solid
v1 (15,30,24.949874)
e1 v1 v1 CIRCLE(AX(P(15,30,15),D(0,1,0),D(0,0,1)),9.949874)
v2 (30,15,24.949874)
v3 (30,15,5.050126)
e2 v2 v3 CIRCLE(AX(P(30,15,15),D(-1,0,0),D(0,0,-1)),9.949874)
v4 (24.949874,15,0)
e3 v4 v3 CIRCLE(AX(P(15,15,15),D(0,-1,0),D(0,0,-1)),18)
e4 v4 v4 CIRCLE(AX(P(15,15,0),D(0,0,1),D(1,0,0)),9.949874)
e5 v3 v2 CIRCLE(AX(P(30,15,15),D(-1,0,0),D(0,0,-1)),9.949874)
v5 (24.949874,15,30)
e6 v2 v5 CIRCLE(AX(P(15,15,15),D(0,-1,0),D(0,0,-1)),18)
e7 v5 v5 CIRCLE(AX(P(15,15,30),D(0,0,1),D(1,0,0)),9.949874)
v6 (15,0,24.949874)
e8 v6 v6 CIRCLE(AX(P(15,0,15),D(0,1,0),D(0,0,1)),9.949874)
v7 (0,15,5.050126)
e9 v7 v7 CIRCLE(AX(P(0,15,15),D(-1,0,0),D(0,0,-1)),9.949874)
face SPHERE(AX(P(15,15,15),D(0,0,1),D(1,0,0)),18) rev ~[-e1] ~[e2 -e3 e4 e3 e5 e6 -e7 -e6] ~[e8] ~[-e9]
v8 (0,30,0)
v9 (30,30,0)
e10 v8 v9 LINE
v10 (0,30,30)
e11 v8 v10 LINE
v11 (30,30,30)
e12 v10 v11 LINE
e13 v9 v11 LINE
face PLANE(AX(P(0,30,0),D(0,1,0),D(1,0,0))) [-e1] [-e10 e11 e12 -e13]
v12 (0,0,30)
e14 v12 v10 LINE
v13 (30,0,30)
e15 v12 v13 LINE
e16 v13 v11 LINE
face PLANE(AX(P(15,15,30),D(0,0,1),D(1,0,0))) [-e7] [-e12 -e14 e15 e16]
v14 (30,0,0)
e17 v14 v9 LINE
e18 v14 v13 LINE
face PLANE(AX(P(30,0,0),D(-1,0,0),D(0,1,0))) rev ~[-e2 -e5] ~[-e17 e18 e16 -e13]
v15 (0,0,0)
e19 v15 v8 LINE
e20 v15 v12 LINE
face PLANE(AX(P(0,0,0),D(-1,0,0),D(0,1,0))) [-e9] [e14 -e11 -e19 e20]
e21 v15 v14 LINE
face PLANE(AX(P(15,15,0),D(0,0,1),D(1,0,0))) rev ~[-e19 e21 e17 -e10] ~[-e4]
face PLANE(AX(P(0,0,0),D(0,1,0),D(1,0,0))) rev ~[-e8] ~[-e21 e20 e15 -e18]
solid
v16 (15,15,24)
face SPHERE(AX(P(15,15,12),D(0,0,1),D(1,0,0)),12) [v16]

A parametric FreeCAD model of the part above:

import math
import FreeCAD as App
import Part
import Sketcher
from FreeCAD import Vector


def add_polygon(sketch, points):
    """Adds a closed chain of lines whose ends are joined by coincident constraints."""
    first, n = sketch.GeometryCount, len(points)
    for a, b in zip(points, points[1:] + points[:1]):
        sketch.addGeometry(Part.LineSegment(App.Vector(*a, 0), App.Vector(*b, 0)), False)
    for i in range(n):
        sketch.addConstraint(Sketcher.Constraint("Coincident", first + i, 2, first + (i + 1) % n, 1))

doc = App.newDocument("Part")
body = doc.addObject("PartDesign::Body", "Body")

# Sketch on XZ plane
sketch1 = body.newObject("Sketcher::SketchObject", "Sketch")
sketch1.AttachmentSupport = (doc.getObject("XZ_Plane"), [""])
sketch1.MapMode = "FlatFace"
sketch1.AttachmentOffset = App.Placement(Vector(0, 0, -15), App.Rotation())
sketch1.addGeometry([
    Part.ArcOfCircle(Part.Circle(Vector(15, 12, 0), Vector(0, 0, 1), 12), math.radians(-90), math.radians(90)),
    Part.LineSegment(Vector(15, 24, 0), Vector(15, 0, 0)),
], False)
sketch1.addGeometry(Part.LineSegment(Vector(15, 0, 0), Vector(15, 24, 0)), True)  # axis
sketch1.addConstraint([
    Sketcher.Constraint("Coincident", 0, 1, 1, 2),
    Sketcher.Constraint("Coincident", 1, 1, 0, 2),
    Sketcher.Constraint("Vertical", 1),
    Sketcher.Constraint("Vertical", 2),
    Sketcher.Constraint("Coincident", 2, 1, 0, 1),
    Sketcher.Constraint("PointOnObject", 0, 1, -1),
    Sketcher.Constraint("Equal", 1, 2),
    Sketcher.Constraint("Radius", 0, 12.0),
    Sketcher.Constraint("DistanceX", -1, 1, 0, 3, 15.0),
    Sketcher.Constraint("DistanceX", -1, 1, 0, 1, 15.0),
])
revolution = body.newObject("PartDesign::Revolution", "Revolution")
revolution.Profile = sketch1
revolution.ReferenceAxis = (sketch1, ["Axis0"])
revolution.Angle = 360
body2 = doc.addObject("PartDesign::Body", "Body001")

# Sketch on XZ plane
sketch2 = body2.newObject("Sketcher::SketchObject", "Sketch001")
sketch2.AttachmentSupport = (doc.getObject("XZ_Plane001"), [""])
sketch2.MapMode = "FlatFace"
sketch2.AttachmentOffset = App.Placement(Vector(0, 0, -15), App.Rotation())
sketch2.addGeometry([
    Part.ArcOfCircle(Part.Circle(Vector(15, 15, 0), Vector(0, 0, 1), 18), math.radians(-90), math.radians(90)),
    Part.LineSegment(Vector(15, 33, 0), Vector(15, -3, 0)),
], False)
sketch2.addGeometry(Part.LineSegment(Vector(15, -3, 0), Vector(15, 33, 0)), True)  # axis
sketch2.addConstraint([
    Sketcher.Constraint("Coincident", 0, 1, 1, 2),
    Sketcher.Constraint("Coincident", 1, 1, 0, 2),
    Sketcher.Constraint("Vertical", 1),
    Sketcher.Constraint("Vertical", 2),
    Sketcher.Constraint("Coincident", 2, 1, 0, 1),
    Sketcher.Constraint("Equal", 1, 2),
    Sketcher.Constraint("Radius", 0, 18.0),
    Sketcher.Constraint("DistanceX", -1, 1, 0, 3, 15.0),
    Sketcher.Constraint("DistanceY", -1, 1, 0, 3, 15.0),
    Sketcher.Constraint("DistanceX", -1, 1, 0, 1, 15.0),
])
revolution2 = body2.newObject("PartDesign::Revolution", "Revolution001")
revolution2.Profile = sketch2
revolution2.ReferenceAxis = (sketch2, ["Axis0"])
revolution2.Angle = 360
body3 = doc.addObject("PartDesign::Body", "Body002")
body3.AllowCompound = True

# Sketch on XY plane
sketch3 = body3.newObject("Sketcher::SketchObject", "Sketch002")
sketch3.AttachmentSupport = (doc.getObject("XY_Plane002"), [""])
sketch3.MapMode = "FlatFace"
add_polygon(sketch3, [(0, 30), (0, 0), (30, 0), (30, 30)])  # lines 0-3
sketch3.addConstraint([
    Sketcher.Constraint("Vertical", 0),
    Sketcher.Constraint("Horizontal", 1),
    Sketcher.Constraint("Vertical", 2),
    Sketcher.Constraint("Horizontal", 3),
    Sketcher.Constraint("Coincident", 0, 2, -1, 1),
    Sketcher.Constraint("Equal", 3, 0),
    Sketcher.Constraint("DistanceX", 1, 1, 1, 2, 30.0),
])
pad1 = body3.newObject("PartDesign::Pad", "Pad")
pad1.Profile = sketch3
pad1.Length = 30
doc.recompute()

boolean = body3.newObject("PartDesign::Boolean", "Boolean")
boolean.Type = "Cut"
boolean.addObjects([body2])
doc.recompute()

boolean2 = body3.newObject("PartDesign::Boolean", "Boolean001")
boolean2.Type = "Fuse"
boolean2.addObjects([body])

doc.recompute()
